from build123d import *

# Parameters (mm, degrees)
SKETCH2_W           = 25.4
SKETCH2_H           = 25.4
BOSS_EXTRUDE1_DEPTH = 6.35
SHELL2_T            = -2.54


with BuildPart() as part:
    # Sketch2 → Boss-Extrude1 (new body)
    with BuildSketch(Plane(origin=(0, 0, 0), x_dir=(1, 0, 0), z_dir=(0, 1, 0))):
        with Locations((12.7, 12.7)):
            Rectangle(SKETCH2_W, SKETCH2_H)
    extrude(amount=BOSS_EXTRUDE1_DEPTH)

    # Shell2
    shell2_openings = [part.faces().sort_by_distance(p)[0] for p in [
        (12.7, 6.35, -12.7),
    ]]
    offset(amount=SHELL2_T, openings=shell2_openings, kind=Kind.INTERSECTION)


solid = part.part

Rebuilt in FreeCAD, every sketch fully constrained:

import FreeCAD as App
import Part
import Sketcher

V = App.Vector
Q = App.Units.Quantity


def faces_at(feature, points):
    """Names of the faces that lie closest to the given points."""
    faces = feature.Shape.Faces
    near = lambda p: min(range(len(faces)), key=lambda i: faces[i].distToShape(Part.Vertex(*p))[0])
    return sorted({f"Face{near(p) + 1}" for p in points})

doc = App.newDocument("Part")
body = doc.addObject("PartDesign::Body", "Body")

sketch1 = body.newObject("Sketcher::SketchObject", "Sketch")
sketch1.AttachmentSupport = (doc.getObject("XZ_Plane"), [""])
sketch1.MapMode = "FlatFace"
sketch1.addGeometry(Part.LineSegment(V(0, -25.4, 0), V(0, 0, 0)), False)
sketch1.addGeometry(Part.LineSegment(V(0, 0, 0), V(25.4, 0, 0)), False)
sketch1.addGeometry(Part.LineSegment(V(25.4, 0, 0), V(25.4, -25.4, 0)), False)
sketch1.addGeometry(Part.LineSegment(V(25.4, -25.4, 0), V(0, -25.4, 0)), False)
sketch1.addConstraint(Sketcher.Constraint("Coincident", 0, 2, 1, 1))
sketch1.addConstraint(Sketcher.Constraint("Coincident", 1, 2, 2, 1))
sketch1.addConstraint(Sketcher.Constraint("Coincident", 2, 2, 3, 1))
sketch1.addConstraint(Sketcher.Constraint("Coincident", 3, 2, 0, 1))
sketch1.addConstraint(Sketcher.Constraint("Vertical", 0))
sketch1.addConstraint(Sketcher.Constraint("Horizontal", 1))
sketch1.addConstraint(Sketcher.Constraint("Vertical", 2))
sketch1.addConstraint(Sketcher.Constraint("Horizontal", 3))
sketch1.addConstraint(Sketcher.Constraint("Coincident", 0, 2, -1, 1))
sketch1.addConstraint(Sketcher.Constraint("Equal", 3, 0))
sketch1.addConstraint(Sketcher.Constraint("DistanceX", 1, 1, 1, 2, Q("1 in")))
pad1 = body.newObject("PartDesign::Pad", "Pad")
pad1.Profile = sketch1
pad1.Length = Q("0.25 in")
pad1.Reversed = True
doc.recompute()

thickness = body.newObject("PartDesign::Thickness", "Thickness")
thickness.Base = (pad1, faces_at(pad1, [(12.7, 6.35, -12.7)]))
thickness.Value = Q("0.1 in")
thickness.Reversed = True
thickness.Join = "Intersection"

doc.recompute()
